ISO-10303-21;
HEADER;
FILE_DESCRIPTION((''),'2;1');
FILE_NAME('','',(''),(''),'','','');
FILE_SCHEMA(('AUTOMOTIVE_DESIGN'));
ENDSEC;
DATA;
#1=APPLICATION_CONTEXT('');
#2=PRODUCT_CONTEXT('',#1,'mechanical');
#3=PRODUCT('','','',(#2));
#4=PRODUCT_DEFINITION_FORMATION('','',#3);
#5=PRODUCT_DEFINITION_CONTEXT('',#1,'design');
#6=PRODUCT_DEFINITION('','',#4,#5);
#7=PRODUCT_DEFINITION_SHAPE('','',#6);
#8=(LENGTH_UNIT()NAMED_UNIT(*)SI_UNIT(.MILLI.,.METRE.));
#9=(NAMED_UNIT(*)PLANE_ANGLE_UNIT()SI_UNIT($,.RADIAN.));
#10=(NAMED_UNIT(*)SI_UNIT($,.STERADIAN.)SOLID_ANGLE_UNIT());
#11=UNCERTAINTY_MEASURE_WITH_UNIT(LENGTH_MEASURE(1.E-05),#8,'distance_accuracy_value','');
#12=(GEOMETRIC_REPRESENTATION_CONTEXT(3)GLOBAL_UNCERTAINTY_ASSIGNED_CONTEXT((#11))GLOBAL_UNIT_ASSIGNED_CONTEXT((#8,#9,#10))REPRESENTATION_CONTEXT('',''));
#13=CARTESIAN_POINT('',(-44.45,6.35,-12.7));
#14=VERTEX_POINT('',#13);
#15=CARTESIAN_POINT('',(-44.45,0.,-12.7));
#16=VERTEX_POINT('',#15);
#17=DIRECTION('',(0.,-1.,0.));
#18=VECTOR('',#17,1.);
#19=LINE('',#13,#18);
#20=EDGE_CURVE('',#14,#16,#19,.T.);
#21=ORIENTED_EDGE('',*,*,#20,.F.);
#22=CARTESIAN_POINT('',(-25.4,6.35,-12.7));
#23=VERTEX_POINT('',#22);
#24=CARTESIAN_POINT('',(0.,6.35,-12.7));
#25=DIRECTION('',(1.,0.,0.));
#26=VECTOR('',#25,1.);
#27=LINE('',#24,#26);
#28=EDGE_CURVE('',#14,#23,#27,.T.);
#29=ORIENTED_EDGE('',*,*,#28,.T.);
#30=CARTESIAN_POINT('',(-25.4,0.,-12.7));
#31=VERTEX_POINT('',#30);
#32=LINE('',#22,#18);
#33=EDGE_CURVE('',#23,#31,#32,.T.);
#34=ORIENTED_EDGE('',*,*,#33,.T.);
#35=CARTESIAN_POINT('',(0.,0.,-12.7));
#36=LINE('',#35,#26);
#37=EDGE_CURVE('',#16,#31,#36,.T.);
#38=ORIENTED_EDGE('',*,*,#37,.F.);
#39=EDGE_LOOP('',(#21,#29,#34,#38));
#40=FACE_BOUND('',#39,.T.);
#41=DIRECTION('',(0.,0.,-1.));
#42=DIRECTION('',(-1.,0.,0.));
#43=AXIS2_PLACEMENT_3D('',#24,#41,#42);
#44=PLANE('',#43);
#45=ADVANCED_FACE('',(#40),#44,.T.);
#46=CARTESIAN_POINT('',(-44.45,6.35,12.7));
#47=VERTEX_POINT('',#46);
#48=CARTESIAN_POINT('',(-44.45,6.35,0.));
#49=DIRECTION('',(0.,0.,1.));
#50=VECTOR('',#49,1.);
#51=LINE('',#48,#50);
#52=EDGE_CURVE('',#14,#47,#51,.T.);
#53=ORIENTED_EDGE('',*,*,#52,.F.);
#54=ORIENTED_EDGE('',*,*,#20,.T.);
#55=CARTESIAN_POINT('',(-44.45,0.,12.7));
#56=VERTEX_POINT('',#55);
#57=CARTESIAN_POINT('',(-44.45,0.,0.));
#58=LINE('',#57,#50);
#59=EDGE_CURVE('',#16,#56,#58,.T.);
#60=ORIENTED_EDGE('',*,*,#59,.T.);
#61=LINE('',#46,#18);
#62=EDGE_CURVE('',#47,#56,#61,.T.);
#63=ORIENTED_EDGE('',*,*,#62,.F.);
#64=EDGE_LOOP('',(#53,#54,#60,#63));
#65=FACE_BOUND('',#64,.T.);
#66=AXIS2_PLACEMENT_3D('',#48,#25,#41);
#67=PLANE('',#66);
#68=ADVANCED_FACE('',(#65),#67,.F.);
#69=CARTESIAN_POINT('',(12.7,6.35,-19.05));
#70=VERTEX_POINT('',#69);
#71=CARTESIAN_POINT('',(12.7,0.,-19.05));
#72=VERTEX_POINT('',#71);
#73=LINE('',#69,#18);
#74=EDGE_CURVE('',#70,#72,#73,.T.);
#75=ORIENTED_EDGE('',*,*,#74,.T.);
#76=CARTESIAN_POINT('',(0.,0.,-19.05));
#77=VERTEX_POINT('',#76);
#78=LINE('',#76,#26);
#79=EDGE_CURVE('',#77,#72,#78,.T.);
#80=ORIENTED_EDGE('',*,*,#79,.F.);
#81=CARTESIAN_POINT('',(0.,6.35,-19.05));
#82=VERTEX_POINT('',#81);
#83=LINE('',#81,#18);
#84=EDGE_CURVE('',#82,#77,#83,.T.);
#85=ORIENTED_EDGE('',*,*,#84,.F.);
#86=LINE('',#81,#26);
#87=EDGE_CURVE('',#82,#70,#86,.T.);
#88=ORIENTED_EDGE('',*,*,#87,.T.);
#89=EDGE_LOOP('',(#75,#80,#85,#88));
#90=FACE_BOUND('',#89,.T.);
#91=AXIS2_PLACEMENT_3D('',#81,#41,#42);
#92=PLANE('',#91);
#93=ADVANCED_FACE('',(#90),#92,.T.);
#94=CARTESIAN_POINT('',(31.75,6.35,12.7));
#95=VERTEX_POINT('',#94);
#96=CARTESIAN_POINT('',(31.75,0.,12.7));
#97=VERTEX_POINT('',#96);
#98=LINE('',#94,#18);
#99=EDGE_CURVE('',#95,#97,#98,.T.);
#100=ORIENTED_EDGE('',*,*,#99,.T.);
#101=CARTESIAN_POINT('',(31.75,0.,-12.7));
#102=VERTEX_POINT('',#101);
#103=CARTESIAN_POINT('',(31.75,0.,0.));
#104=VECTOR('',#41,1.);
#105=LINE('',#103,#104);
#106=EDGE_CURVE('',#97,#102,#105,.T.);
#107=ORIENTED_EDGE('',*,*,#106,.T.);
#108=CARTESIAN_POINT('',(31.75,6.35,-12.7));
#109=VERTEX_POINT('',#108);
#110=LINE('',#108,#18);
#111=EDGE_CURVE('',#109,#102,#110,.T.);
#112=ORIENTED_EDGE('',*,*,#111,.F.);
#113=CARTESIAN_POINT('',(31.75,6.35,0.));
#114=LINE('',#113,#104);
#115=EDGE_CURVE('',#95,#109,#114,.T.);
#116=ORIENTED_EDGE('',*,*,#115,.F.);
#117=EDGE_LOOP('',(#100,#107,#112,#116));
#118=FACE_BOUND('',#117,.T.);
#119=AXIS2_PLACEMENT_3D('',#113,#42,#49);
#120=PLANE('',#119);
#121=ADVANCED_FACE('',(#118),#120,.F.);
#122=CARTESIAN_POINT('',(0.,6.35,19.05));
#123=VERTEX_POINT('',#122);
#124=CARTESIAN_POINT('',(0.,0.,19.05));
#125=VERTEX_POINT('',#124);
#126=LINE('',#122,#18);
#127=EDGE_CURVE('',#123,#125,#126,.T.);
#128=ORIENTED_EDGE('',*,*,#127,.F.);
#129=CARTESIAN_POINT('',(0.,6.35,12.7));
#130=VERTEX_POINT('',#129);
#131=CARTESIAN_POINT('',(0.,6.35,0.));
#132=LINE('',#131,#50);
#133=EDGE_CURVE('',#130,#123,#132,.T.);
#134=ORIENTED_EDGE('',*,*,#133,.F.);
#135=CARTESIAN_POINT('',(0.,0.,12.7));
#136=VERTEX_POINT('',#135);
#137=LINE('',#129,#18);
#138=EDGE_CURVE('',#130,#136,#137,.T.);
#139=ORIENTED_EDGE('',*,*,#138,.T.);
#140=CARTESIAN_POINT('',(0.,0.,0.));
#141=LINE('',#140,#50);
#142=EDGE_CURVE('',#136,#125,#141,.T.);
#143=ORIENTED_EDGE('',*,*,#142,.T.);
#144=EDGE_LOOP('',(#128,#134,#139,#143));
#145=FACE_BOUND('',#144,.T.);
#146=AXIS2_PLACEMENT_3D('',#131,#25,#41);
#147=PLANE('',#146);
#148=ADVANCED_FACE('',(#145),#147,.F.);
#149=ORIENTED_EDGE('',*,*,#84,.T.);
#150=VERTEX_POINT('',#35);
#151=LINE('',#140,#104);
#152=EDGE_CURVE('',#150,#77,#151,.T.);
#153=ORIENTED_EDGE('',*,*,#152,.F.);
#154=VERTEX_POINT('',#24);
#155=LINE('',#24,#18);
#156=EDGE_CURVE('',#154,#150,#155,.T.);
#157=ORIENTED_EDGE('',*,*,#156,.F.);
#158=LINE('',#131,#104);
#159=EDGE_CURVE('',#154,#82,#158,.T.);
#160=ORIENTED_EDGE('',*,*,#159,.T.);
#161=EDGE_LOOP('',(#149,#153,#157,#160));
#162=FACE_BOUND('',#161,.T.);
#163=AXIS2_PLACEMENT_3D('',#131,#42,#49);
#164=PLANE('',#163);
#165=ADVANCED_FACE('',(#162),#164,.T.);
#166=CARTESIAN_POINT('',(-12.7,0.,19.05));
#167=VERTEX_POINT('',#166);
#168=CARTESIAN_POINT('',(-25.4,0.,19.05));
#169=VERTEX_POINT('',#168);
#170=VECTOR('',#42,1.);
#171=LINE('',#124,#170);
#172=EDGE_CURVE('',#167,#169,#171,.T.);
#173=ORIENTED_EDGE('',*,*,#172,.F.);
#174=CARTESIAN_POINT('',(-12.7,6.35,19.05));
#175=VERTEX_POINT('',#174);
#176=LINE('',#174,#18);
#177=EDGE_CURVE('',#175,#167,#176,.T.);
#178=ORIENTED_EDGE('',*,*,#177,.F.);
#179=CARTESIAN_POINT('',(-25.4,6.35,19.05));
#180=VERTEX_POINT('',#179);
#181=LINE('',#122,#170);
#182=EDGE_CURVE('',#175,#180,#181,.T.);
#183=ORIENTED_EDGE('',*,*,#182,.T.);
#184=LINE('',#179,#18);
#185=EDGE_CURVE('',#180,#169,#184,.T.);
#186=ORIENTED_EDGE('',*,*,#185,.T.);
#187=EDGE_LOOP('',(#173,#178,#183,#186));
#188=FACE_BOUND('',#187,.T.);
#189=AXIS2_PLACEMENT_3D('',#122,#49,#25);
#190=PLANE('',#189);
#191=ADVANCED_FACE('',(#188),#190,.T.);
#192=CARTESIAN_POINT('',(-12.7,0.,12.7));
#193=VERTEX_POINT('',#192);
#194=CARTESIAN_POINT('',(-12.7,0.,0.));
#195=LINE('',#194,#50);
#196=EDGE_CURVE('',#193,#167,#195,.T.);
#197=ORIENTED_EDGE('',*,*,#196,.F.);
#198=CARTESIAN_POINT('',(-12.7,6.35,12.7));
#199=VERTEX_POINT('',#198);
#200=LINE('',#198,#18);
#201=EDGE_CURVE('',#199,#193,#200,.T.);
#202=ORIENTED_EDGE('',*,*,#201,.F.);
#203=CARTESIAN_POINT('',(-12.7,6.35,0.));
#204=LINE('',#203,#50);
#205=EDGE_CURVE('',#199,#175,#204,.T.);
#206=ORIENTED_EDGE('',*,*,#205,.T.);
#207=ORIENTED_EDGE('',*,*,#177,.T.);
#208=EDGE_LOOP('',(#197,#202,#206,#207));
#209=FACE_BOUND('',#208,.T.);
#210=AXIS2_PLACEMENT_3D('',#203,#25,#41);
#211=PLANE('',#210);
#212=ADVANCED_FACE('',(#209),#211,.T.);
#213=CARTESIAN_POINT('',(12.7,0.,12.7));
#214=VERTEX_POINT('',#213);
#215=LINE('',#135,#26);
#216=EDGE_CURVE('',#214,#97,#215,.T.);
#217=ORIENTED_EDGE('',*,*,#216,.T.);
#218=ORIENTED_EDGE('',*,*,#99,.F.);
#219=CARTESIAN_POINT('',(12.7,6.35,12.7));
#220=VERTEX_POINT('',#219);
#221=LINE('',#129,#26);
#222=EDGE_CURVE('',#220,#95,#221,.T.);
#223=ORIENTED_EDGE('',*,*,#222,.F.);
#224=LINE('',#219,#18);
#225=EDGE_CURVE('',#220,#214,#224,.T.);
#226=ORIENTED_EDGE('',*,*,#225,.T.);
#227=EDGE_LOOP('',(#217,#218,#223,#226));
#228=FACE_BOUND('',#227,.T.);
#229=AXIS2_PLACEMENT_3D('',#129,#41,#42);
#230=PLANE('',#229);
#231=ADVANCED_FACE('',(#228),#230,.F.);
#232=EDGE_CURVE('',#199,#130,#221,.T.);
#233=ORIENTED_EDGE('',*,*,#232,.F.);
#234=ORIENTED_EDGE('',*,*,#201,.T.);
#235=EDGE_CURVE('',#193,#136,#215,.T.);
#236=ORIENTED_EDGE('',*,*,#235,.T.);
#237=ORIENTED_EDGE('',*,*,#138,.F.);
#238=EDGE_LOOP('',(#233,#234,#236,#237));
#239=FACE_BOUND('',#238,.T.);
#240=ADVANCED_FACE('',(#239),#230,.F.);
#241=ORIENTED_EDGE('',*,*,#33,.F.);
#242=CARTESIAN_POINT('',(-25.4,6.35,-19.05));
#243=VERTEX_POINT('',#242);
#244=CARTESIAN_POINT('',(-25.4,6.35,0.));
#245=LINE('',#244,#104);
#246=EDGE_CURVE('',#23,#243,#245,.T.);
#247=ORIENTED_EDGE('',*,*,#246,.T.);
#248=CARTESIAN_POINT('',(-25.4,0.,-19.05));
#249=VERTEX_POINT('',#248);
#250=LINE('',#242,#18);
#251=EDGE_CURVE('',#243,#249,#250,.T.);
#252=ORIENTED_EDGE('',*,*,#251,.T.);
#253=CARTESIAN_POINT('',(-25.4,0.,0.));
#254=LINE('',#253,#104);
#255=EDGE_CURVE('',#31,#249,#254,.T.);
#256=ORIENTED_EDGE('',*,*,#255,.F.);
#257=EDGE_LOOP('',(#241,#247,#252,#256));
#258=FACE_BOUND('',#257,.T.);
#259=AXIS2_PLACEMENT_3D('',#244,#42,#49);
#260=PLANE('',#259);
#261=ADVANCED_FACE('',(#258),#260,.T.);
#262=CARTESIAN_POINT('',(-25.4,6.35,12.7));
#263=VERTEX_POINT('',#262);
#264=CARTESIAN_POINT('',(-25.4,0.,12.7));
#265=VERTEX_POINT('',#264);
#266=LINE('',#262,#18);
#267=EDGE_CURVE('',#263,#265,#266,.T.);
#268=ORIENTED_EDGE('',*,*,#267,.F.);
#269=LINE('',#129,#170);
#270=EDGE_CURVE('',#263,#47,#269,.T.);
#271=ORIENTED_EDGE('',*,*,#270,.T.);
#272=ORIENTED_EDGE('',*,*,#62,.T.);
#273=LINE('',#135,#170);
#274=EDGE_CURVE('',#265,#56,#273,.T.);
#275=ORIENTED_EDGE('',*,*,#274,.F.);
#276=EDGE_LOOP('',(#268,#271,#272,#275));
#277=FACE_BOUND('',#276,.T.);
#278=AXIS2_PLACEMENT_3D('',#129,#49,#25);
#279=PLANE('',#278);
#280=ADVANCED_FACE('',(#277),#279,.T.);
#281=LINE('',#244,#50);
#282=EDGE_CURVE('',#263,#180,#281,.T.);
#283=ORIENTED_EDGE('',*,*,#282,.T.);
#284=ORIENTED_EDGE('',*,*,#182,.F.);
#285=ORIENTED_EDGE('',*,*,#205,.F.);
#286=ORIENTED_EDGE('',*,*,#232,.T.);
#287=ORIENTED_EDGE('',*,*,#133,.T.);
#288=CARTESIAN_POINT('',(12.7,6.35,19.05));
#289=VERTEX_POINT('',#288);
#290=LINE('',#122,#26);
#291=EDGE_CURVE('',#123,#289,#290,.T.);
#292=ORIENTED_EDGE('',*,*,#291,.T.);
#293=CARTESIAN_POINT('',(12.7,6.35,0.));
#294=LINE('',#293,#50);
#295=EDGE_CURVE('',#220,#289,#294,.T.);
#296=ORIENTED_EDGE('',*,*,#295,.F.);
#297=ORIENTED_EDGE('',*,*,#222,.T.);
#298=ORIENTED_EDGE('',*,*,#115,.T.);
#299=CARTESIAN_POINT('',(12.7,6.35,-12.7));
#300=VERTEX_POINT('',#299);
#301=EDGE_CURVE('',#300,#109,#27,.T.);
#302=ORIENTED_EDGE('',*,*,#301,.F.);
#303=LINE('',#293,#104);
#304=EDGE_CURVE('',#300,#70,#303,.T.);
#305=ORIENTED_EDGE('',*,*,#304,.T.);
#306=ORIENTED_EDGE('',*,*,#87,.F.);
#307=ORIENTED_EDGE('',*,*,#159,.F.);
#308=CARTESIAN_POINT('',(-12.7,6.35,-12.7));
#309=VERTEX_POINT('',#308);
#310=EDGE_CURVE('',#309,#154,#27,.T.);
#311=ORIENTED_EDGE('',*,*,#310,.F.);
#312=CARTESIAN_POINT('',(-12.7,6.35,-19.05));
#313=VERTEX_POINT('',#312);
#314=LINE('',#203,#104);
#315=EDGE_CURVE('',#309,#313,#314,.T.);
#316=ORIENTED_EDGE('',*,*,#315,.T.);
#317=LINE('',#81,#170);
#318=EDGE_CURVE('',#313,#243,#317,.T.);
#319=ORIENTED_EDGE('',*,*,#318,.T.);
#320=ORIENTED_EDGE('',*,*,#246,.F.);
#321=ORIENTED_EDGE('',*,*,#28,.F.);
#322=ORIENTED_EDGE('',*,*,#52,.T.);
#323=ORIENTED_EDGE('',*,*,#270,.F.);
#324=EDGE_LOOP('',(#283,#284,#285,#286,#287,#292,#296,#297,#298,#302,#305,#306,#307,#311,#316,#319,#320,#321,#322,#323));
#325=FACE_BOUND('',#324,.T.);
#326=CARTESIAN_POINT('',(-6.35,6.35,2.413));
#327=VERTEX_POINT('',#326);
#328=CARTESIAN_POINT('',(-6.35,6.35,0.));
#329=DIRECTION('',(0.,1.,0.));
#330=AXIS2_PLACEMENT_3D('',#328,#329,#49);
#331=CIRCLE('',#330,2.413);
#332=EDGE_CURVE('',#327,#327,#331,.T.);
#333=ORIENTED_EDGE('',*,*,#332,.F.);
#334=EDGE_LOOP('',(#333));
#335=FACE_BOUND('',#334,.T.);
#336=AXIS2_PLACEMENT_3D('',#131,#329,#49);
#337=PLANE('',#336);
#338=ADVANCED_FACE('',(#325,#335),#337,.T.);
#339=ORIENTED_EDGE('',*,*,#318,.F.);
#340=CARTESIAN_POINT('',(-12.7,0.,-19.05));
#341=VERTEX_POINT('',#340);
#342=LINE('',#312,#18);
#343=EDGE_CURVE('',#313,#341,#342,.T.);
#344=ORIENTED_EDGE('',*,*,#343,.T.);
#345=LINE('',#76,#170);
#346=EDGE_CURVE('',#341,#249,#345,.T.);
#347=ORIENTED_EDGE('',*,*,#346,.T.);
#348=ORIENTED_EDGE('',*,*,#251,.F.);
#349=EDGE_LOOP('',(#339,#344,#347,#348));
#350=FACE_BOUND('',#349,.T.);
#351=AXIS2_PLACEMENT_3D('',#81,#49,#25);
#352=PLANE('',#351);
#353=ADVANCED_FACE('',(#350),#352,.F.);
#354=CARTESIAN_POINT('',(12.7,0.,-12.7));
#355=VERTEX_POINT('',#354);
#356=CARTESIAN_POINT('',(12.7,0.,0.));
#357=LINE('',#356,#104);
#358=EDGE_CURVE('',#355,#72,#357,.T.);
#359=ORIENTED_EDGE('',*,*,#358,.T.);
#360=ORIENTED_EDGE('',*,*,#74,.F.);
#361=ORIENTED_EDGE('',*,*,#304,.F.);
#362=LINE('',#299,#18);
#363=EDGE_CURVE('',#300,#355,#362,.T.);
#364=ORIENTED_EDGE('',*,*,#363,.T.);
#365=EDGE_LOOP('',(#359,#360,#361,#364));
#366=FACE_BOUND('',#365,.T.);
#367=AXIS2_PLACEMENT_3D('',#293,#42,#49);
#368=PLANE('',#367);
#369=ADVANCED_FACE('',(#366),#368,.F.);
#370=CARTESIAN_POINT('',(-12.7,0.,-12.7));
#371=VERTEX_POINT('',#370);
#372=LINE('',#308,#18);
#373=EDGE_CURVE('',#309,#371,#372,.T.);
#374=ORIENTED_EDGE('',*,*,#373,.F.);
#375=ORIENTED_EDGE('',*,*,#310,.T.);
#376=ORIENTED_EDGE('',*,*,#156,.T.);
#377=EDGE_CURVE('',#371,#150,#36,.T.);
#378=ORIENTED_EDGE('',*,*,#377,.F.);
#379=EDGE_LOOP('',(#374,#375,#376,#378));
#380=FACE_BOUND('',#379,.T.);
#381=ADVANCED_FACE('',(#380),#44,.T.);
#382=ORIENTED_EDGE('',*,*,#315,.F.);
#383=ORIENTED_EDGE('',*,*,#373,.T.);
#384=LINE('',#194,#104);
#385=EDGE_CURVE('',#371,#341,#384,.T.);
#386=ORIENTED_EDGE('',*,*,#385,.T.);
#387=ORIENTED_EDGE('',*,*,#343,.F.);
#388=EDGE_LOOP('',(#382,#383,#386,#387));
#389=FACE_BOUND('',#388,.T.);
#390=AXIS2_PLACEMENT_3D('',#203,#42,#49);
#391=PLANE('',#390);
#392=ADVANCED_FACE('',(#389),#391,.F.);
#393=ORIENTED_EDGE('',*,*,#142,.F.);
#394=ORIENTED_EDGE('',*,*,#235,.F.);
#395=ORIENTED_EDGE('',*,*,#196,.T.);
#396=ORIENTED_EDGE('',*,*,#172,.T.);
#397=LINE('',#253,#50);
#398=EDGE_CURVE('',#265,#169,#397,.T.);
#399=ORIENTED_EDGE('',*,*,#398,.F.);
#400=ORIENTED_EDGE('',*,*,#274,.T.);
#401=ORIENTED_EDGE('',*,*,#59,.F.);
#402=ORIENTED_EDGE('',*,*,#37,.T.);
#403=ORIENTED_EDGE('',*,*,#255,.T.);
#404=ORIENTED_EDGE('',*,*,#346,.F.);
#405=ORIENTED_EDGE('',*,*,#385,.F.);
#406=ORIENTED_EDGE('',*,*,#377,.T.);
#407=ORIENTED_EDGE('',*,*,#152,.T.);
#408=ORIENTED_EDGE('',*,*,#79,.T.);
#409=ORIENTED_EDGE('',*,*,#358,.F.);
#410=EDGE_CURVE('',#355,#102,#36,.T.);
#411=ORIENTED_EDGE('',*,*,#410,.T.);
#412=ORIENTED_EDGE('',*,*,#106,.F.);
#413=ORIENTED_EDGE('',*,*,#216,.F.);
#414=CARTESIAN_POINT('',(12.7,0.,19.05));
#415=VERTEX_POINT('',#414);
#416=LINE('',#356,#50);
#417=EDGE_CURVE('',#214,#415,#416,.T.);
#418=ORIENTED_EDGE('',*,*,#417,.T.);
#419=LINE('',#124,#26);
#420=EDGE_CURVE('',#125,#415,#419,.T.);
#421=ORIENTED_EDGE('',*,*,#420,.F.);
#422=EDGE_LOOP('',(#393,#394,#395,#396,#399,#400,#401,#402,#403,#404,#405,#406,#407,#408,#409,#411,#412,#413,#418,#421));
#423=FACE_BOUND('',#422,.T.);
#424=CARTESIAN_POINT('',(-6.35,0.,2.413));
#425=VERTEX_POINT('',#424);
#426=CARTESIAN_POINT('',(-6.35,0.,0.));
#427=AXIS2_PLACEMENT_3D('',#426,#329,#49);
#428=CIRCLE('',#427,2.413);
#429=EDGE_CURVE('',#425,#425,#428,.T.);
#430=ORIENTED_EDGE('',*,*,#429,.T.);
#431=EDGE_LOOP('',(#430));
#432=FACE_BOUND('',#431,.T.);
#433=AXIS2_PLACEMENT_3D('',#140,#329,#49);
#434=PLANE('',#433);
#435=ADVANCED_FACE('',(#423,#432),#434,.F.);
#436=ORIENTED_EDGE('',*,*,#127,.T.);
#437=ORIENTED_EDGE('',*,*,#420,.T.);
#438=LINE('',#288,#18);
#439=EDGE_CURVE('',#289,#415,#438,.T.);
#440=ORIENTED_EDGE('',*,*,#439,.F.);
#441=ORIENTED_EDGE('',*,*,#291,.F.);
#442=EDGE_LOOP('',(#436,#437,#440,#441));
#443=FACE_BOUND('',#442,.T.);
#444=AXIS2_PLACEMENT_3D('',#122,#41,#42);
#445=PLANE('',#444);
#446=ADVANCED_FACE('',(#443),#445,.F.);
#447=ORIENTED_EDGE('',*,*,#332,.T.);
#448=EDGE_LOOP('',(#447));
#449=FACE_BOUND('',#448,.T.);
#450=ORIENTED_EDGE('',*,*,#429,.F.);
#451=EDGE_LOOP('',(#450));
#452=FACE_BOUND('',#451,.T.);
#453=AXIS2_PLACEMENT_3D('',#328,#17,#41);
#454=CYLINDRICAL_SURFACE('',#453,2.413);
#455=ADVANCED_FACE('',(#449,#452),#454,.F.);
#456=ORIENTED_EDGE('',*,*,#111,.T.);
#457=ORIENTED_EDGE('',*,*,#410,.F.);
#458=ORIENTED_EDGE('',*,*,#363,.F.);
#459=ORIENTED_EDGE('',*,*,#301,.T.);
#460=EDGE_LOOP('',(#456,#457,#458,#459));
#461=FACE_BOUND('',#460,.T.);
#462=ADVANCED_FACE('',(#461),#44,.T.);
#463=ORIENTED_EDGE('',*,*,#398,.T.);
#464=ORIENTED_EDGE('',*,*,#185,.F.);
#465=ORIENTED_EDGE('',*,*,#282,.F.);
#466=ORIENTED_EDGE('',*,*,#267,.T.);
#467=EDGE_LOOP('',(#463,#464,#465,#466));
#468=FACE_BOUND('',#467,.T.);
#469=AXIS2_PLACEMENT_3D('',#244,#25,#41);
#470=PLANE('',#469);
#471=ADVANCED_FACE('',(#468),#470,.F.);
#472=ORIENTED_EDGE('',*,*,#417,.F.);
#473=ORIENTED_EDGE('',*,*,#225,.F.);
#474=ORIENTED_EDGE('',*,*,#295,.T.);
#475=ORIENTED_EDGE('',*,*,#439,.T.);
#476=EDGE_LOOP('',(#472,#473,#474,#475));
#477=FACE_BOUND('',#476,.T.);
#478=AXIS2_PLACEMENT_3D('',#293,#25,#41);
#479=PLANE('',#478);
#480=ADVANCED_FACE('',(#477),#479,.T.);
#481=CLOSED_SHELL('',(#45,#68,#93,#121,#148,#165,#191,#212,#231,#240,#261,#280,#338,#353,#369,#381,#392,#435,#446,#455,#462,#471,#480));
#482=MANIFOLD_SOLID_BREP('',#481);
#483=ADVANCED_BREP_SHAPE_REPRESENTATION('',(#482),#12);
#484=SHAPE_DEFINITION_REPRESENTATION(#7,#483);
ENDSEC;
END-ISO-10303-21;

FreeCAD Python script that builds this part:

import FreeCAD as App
import Part
import Sketcher

V = App.Vector
Q = App.Units.Quantity

doc = App.newDocument("Part")
body = doc.addObject("PartDesign::Body", "Body")

sketch1 = body.newObject("Sketcher::SketchObject", "Sketch")
sketch1.AttachmentSupport = (doc.getObject("XZ_Plane"), [""])
sketch1.MapMode = "FlatFace"
sketch1.addGeometry([
    Part.LineSegment(V(-44.5, 12.7, 0), V(-25.4, 12.7, 0)),
    Part.LineSegment(V(-25.4, 12.7, 0), V(-25.4, 19.1, 0)),
    Part.LineSegment(V(-25.4, 19.1, 0), V(-12.7, 19.1, 0)),
    Part.LineSegment(V(-12.7, 19.1, 0), V(-12.7, 12.7, 0)),
    Part.LineSegment(V(-12.7, 12.7, 0), V(0, 12.7, 0)),
    Part.LineSegment(V(0, 12.7, 0), V(0, 19.1, 0)),
    Part.LineSegment(V(0, 19.1, 0), V(12.7, 19.1, 0)),
    Part.LineSegment(V(12.7, 19.1, 0), V(12.7, 12.7, 0)),
    Part.LineSegment(V(12.7, 12.7, 0), V(31.8, 12.7, 0)),
    Part.LineSegment(V(31.8, 12.7, 0), V(31.8, -12.7, 0)),
    Part.LineSegment(V(31.8, -12.7, 0), V(12.7, -12.7, 0)),
    Part.LineSegment(V(12.7, -12.7, 0), V(12.7, -19.1, 0)),
    Part.LineSegment(V(12.7, -19.1, 0), V(0, -19.1, 0)),
    Part.LineSegment(V(0, -19.1, 0), V(0, -12.7, 0)),
    Part.LineSegment(V(0, -12.7, 0), V(-12.7, -12.7, 0)),
    Part.LineSegment(V(-12.7, -12.7, 0), V(-12.7, -19.1, 0)),
    Part.LineSegment(V(-12.7, -19.1, 0), V(-25.4, -19.1, 0)),
    Part.LineSegment(V(-25.4, -19.1, 0), V(-25.4, -12.7, 0)),
    Part.LineSegment(V(-25.4, -12.7, 0), V(-44.5, -12.7, 0)),
    Part.LineSegment(V(-44.5, -12.7, 0), V(-44.5, 12.7, 0)),
    Part.Circle(V(-6.3, 0, 0), V(0, 0, 1), 2.4),
], False)
sketch1.addConstraint([
    Sketcher.Constraint("Coincident", 0, 2, 1, 1),
    Sketcher.Constraint("Coincident", 1, 2, 2, 1),
    Sketcher.Constraint("Coincident", 2, 2, 3, 1),
    Sketcher.Constraint("Coincident", 3, 2, 4, 1),
    Sketcher.Constraint("Coincident", 4, 2, 5, 1),
    Sketcher.Constraint("Coincident", 5, 2, 6, 1),
    Sketcher.Constraint("Coincident", 6, 2, 7, 1),
    Sketcher.Constraint("Coincident", 7, 2, 8, 1),
    Sketcher.Constraint("Coincident", 8, 2, 9, 1),
    Sketcher.Constraint("Coincident", 9, 2, 10, 1),
    Sketcher.Constraint("Coincident", 10, 2, 11, 1),
    Sketcher.Constraint("Coincident", 11, 2, 12, 1),
    Sketcher.Constraint("Coincident", 12, 2, 13, 1),
    Sketcher.Constraint("Coincident", 13, 2, 14, 1),
    Sketcher.Constraint("Coincident", 14, 2, 15, 1),
    Sketcher.Constraint("Coincident", 15, 2, 16, 1),
    Sketcher.Constraint("Coincident", 16, 2, 17, 1),
    Sketcher.Constraint("Coincident", 17, 2, 18, 1),
    Sketcher.Constraint("Coincident", 18, 2, 19, 1),
    Sketcher.Constraint("Coincident", 19, 2, 0, 1),
    Sketcher.Constraint("Horizontal", 0),
    Sketcher.Constraint("Vertical", 1),
    Sketcher.Constraint("Horizontal", 2),
    Sketcher.Constraint("Vertical", 3),
    Sketcher.Constraint("Horizontal", 4),
    Sketcher.Constraint("Vertical", 5),
    Sketcher.Constraint("Horizontal", 6),
    Sketcher.Constraint("Vertical", 7),
    Sketcher.Constraint("Horizontal", 8),
    Sketcher.Constraint("Vertical", 9),
    Sketcher.Constraint("Horizontal", 10),
    Sketcher.Constraint("Vertical", 11),
    Sketcher.Constraint("Horizontal", 12),
    Sketcher.Constraint("Vertical", 13),
    Sketcher.Constraint("Horizontal", 14),
    Sketcher.Constraint("Vertical", 15),
    Sketcher.Constraint("Horizontal", 16),
    Sketcher.Constraint("Vertical", 17),
    Sketcher.Constraint("Horizontal", 18),
    Sketcher.Constraint("Vertical", 19),
    Sketcher.Constraint("Symmetric", 3, 2, 10, 2, -1, 1),
    Sketcher.Constraint("Symmetric", 5, 2, 12, 2, -1, 1),
    Sketcher.Constraint("Symmetric", 7, 2, 14, 2, -1, 1),
    Sketcher.Constraint("Symmetric", 2, 2, 6, 2, -2),
    Sketcher.Constraint("Symmetric", 4, 2, 13, 2, -1),
    Sketcher.Constraint("Symmetric", 1, 2, 16, 2, -1),
    Sketcher.Constraint("PointOnObject", 20, 3, -1),
    Sketcher.Constraint("Horizontal", 0, 2, 3, 2),
    Sketcher.Constraint("Horizontal", 14, 2, 17, 2),
    Sketcher.Constraint("Equal", 2, 4),
    Sketcher.Constraint("Equal", 0, 8),
    Sketcher.Constraint("Diameter", 20, Q("0.19 in")),
    Sketcher.Constraint("DistanceY", 9, 2, 9, 1, Q("1 in")),
    Sketcher.Constraint("DistanceX", 2, 1, 2, 2, Q("0.5 in")),
    Sketcher.Constraint("DistanceX", 0, 1, 0, 2, Q("0.75 in")),
    Sketcher.Constraint("DistanceY", 1, 1, 1, 2, Q("0.25 in")),
    Sketcher.Constraint("DistanceX", 20, 3, 8, 2, Q("1.5 in")),
])
pad1 = body.newObject("PartDesign::Pad", "Pad")
pad1.Profile = sketch1
pad1.Length = Q("0.25 in")
pad1.Reversed = True

doc.recompute()
